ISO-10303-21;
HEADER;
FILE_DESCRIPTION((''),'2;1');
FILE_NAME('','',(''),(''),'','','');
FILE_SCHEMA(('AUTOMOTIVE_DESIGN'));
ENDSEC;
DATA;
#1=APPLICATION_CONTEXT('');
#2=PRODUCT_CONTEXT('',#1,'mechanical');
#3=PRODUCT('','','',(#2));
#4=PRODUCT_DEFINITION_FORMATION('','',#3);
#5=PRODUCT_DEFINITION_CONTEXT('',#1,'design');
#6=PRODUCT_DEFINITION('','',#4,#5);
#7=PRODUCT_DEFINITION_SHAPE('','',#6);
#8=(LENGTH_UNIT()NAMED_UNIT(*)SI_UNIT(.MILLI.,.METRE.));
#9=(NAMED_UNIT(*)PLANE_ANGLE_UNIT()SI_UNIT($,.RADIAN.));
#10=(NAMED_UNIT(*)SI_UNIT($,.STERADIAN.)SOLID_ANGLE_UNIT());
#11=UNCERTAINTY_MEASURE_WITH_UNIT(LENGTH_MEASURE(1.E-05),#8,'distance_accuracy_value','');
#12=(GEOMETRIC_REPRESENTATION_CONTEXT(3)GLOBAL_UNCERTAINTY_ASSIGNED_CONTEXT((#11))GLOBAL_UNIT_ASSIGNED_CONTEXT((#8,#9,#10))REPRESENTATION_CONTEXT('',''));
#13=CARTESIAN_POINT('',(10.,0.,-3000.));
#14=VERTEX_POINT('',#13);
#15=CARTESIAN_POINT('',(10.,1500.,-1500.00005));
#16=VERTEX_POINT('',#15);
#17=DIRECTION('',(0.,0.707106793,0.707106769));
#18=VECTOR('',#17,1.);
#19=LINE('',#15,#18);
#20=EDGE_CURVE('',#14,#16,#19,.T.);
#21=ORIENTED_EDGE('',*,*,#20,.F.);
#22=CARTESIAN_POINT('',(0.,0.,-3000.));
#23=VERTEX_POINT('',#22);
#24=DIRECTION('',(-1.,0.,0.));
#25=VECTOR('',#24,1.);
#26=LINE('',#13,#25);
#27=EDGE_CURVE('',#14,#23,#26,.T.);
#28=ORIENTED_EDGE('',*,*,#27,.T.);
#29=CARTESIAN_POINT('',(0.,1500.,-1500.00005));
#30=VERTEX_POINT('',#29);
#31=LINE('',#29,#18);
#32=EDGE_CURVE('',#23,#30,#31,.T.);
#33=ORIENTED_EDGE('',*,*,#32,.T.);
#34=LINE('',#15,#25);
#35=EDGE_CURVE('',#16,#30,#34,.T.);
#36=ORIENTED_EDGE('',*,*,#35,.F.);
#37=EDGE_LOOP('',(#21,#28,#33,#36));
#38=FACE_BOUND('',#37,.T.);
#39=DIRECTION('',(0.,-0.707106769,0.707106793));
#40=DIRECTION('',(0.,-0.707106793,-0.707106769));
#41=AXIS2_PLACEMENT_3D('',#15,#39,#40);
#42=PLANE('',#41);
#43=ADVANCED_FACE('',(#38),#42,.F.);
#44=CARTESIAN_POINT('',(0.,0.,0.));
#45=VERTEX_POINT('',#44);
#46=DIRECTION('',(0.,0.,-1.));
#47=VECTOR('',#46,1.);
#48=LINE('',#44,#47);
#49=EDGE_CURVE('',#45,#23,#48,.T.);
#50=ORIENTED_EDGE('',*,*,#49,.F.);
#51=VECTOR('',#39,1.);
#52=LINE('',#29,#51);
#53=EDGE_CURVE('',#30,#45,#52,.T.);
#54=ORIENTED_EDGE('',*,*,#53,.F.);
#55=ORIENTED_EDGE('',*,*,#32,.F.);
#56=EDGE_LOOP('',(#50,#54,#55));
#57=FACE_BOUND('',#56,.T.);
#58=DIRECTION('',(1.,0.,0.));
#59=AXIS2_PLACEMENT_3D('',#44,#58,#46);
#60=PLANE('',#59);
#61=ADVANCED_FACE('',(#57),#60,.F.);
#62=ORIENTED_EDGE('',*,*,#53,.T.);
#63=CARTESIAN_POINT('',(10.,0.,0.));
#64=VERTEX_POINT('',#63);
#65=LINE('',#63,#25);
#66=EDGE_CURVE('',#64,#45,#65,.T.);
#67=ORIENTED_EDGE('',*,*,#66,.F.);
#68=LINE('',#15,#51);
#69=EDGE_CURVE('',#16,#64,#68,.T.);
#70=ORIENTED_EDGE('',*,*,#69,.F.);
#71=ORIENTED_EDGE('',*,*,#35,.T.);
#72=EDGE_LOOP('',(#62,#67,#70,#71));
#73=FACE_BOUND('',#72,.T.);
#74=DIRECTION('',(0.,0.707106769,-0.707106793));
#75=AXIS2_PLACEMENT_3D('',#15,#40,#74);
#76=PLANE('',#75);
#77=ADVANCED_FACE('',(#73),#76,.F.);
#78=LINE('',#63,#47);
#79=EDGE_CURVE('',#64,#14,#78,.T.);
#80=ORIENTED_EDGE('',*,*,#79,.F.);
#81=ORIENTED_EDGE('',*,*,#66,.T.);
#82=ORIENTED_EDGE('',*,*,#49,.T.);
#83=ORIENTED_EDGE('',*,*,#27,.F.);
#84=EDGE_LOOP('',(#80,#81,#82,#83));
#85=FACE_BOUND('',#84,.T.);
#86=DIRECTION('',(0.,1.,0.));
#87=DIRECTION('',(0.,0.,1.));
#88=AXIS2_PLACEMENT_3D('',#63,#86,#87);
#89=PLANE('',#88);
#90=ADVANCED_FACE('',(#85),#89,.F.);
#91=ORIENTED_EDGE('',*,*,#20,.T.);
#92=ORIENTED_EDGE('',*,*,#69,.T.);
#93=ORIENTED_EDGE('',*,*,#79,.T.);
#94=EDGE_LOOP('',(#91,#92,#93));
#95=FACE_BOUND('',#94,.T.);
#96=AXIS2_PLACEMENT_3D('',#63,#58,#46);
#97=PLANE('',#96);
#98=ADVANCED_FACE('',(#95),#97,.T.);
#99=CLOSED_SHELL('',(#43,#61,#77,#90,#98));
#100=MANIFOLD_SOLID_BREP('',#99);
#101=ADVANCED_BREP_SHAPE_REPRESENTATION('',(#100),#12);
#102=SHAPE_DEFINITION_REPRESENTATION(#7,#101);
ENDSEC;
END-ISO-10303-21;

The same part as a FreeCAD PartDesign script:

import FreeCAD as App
import Part
import Sketcher
from FreeCAD import Vector
Q = App.Units.Quantity


def add_polygon(sketch, points):
    """Adds a closed chain of lines whose ends are joined by coincident constraints."""
    first, n = sketch.GeometryCount, len(points)
    for a, b in zip(points, points[1:] + points[:1]):
        sketch.addGeometry(Part.LineSegment(App.Vector(*a, 0), App.Vector(*b, 0)), False)
    for i in range(n):
        sketch.addConstraint(Sketcher.Constraint("Coincident", first + i, 2, first + (i + 1) % n, 1))

doc = App.newDocument("Part")
body = doc.addObject("PartDesign::Body", "Body")

# Sketch on YZ plane
sketch1 = doc.addObject("Sketcher::SketchObject", "Sketch")
body.addObject(sketch1)
sketch1.AttachmentSupport = (doc.YZ_Plane, [""])
sketch1.MapMode = "FlatFace"
add_polygon(sketch1, [(0, 0), (0, -3000), (1500, -1500.00005)])  # lines 0-2
sketch1.addConstraint(Sketcher.Constraint("Vertical", 0))
sketch1.addConstraint(Sketcher.Constraint("Coincident", 2, 2, -1, 1))
sketch1.addConstraint(Sketcher.Constraint("Perpendicular", 1, 2))
sketch1.addConstraint(Sketcher.Constraint("DistanceY", 0, 2, 0, 1, Q("3000 mm")))
sketch1.addConstraint(Sketcher.Constraint("Angle", 1, Q("44.999999 deg")))
pad1 = doc.addObject("PartDesign::Pad", "Pad")
body.addObject(pad1)
pad1.Profile = sketch1
pad1.Length = 10

doc.recompute()
